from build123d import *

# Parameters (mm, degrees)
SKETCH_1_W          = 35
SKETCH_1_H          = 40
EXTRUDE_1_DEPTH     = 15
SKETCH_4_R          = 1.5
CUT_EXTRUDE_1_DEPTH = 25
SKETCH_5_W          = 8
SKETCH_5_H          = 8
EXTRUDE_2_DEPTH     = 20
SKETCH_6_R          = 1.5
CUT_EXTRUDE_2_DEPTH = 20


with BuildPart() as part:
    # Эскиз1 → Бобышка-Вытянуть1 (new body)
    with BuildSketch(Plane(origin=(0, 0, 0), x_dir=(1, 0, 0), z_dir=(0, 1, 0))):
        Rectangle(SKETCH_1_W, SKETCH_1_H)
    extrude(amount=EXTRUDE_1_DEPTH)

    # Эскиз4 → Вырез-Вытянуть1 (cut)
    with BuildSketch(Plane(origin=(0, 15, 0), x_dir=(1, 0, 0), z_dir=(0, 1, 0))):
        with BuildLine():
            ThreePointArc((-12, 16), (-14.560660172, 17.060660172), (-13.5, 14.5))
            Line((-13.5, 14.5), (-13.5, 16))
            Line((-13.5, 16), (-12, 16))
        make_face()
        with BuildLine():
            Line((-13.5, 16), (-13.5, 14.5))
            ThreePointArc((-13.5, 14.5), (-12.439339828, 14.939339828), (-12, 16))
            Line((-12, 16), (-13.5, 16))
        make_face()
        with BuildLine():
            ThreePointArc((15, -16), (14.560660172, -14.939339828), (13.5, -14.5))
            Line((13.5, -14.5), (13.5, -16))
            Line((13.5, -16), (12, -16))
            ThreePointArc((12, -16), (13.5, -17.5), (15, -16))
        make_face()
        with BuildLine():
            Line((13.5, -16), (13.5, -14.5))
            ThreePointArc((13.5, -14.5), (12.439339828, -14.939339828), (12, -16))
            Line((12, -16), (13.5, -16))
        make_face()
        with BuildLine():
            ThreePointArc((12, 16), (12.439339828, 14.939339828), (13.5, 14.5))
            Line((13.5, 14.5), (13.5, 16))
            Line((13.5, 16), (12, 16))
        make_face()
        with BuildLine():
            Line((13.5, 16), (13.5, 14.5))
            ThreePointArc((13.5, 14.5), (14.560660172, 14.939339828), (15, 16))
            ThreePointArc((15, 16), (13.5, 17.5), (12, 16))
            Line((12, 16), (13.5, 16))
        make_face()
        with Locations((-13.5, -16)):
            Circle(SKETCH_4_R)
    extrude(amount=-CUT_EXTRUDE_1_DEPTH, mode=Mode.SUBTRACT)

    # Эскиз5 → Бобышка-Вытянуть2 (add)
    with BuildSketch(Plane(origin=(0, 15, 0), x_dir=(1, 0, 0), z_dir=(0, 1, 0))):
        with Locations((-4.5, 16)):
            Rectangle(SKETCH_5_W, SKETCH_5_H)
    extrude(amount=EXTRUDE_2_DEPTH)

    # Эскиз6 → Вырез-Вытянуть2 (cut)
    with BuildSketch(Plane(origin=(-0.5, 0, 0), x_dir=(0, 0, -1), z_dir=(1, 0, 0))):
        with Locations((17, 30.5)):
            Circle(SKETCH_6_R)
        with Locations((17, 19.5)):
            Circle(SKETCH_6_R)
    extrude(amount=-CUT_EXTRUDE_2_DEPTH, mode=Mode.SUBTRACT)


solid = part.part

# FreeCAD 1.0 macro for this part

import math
import FreeCAD as App
import Part
import Sketcher
from FreeCAD import Vector

doc = App.newDocument("Part")
body = doc.addObject("PartDesign::Body", "Body")

# Sketch on XZ plane
sketch1 = body.newObject("Sketcher::SketchObject", "Sketch")
sketch1.AttachmentSupport = (doc.getObject("XZ_Plane"), [""])
sketch1.MapMode = "FlatFace"
sketch1.addGeometry([
    Part.LineSegment(Vector(-18, -20, 0), Vector(-18, 20, 0)),
    Part.LineSegment(Vector(-18, 20, 0), Vector(18, 20, 0)),
    Part.LineSegment(Vector(18, 20, 0), Vector(18, -20, 0)),
    Part.LineSegment(Vector(18, -20, 0), Vector(-18, -20, 0)),
], False)
sketch1.addConstraint([
    Sketcher.Constraint("Coincident", 0, 2, 1, 1),
    Sketcher.Constraint("Coincident", 1, 2, 2, 1),
    Sketcher.Constraint("Coincident", 2, 2, 3, 1),
    Sketcher.Constraint("Coincident", 3, 2, 0, 1),
    Sketcher.Constraint("Vertical", 0),
    Sketcher.Constraint("Horizontal", 1),
    Sketcher.Constraint("Vertical", 2),
    Sketcher.Constraint("Horizontal", 3),
    Sketcher.Constraint("Symmetric", 0, 2, 2, 2, -1, 1),
    Sketcher.Constraint("DistanceX", 1, 1, 1, 2, 35.0),
    Sketcher.Constraint("DistanceY", 0, 1, 0, 2, 40.0),
])
pad1 = body.newObject("PartDesign::Pad", "Pad")
pad1.Profile = sketch1
pad1.Length = 15
pad1.Reversed = True

# Sketch on XZ plane
sketch2 = body.newObject("Sketcher::SketchObject", "Sketch001")
sketch2.AttachmentSupport = (doc.getObject("XZ_Plane"), [""])
sketch2.MapMode = "FlatFace"
sketch2.AttachmentOffset = App.Placement(Vector(0, 0, -15), App.Rotation())
sketch2.addGeometry([
    Part.ArcOfCircle(Part.Circle(Vector(-13.5, -16, 0), Vector(0, 0, 1), 1.5), math.radians(90), math.radians(360)),  # 0
    Part.ArcOfCircle(Part.Circle(Vector(-13.5, -16, 0), Vector(0, 0, 1), 1.5), math.radians(0), math.radians(90)),  # 1
    Part.ArcOfCircle(Part.Circle(Vector(13.5, 16, 0), Vector(0, 0, 1), 1.5), math.radians(-90), math.radians(0)),  # 2
    Part.ArcOfCircle(Part.Circle(Vector(13.5, 16, 0), Vector(0, 0, 1), 1.5), math.radians(180), math.radians(270)),  # 3
    Part.ArcOfCircle(Part.Circle(Vector(13.5, 16, 0), Vector(0, 0, 1), 1.5), math.radians(0), math.radians(180)),  # 4
    Part.ArcOfCircle(Part.Circle(Vector(13.5, -16, 0), Vector(0, 0, 1), 1.5), math.radians(90), math.radians(180)),  # 5
    Part.ArcOfCircle(Part.Circle(Vector(13.5, -16, 0), Vector(0, 0, 1), 1.5), math.radians(0), math.radians(90)),  # 6
    Part.ArcOfCircle(Part.Circle(Vector(13.5, -16, 0), Vector(0, 0, 1), 1.5), math.radians(180), math.radians(360)),  # 7
    Part.Circle(Vector(-13.5, 16, 0), Vector(0, 0, 1), 1.5),  # 8
], False)
sketch2.addConstraint([
    Sketcher.Constraint("Tangent", 0, 1, 1, 2),
    Sketcher.Constraint("Coincident", 1, 1, 0, 2),
    Sketcher.Constraint("Tangent", 2, 1, 3, 2),
    Sketcher.Constraint("Tangent", 3, 1, 4, 2),
    Sketcher.Constraint("Tangent", 4, 1, 2, 2),
    Sketcher.Constraint("Tangent", 5, 1, 6, 2),
    Sketcher.Constraint("Tangent", 6, 1, 7, 2),
    Sketcher.Constraint("Tangent", 7, 1, 5, 2),
    Sketcher.Constraint("Equal", 1, 2),
    Sketcher.Constraint("Equal", 4, 5),
    Sketcher.Constraint("Equal", 7, 8),
    Sketcher.Constraint("Symmetric", 0, 3, 2, 3, -1, 1),
    Sketcher.Constraint("Symmetric", 5, 3, 8, 3, -1, 1),
    Sketcher.Constraint("Symmetric", 0, 3, 5, 3, -2),
    Sketcher.Constraint("Horizontal", 7, 3, 1, 1),
    Sketcher.Constraint("Horizontal", 8, 3, 3, 1),
    Sketcher.Constraint("Horizontal", 3, 1, 4, 1),
    Sketcher.Constraint("Horizontal", 1, 1, 6, 1),
    Sketcher.Constraint("Horizontal", 6, 1, 7, 1),
    Sketcher.Constraint("Vertical", 8, 3, 0, 1),
    Sketcher.Constraint("Vertical", 7, 3, 2, 1),
    Sketcher.Constraint("Vertical", 2, 1, 5, 1),
    Sketcher.Constraint("Diameter", 8, 3.0),
    Sketcher.Constraint("DistanceY", 0, 3, -1, 1, 16.0),
    Sketcher.Constraint("DistanceX", 1, 1, -1, 1, 12.0),
])
pocket1 = body.newObject("PartDesign::Pocket", "Pocket")
pocket1.Profile = sketch2
pocket1.Length = 25
pocket1.Reversed = True

# Sketch on XZ plane
sketch3 = body.newObject("Sketcher::SketchObject", "Sketch002")
sketch3.AttachmentSupport = (doc.getObject("XZ_Plane"), [""])
sketch3.MapMode = "FlatFace"
sketch3.AttachmentOffset = App.Placement(Vector(0, 0, -15), App.Rotation())
sketch3.addGeometry([
    Part.LineSegment(Vector(-8, -20, 0), Vector(-8, -12, 0)),
    Part.LineSegment(Vector(-8, -12, 0), Vector(0, -12, 0)),
    Part.LineSegment(Vector(0, -12, 0), Vector(0, -20, 0)),
    Part.LineSegment(Vector(0, -20, 0), Vector(-8, -20, 0)),
], False)
sketch3.addConstraint([
    Sketcher.Constraint("Coincident", 0, 2, 1, 1),
    Sketcher.Constraint("Coincident", 1, 2, 2, 1),
    Sketcher.Constraint("Coincident", 2, 2, 3, 1),
    Sketcher.Constraint("Coincident", 3, 2, 0, 1),
    Sketcher.Constraint("Vertical", 0),
    Sketcher.Constraint("Horizontal", 1),
    Sketcher.Constraint("Vertical", 2),
    Sketcher.Constraint("Horizontal", 3),
    Sketcher.Constraint("Equal", 3, 0),
    Sketcher.Constraint("DistanceX", 1, 1, 1, 2, 8.0),
    Sketcher.Constraint("DistanceY", 0, 2, -1, 1, 12.0),
    Sketcher.Constraint("DistanceX", 0, 2, -1, 1, 8.5),
])
pad2 = body.newObject("PartDesign::Pad", "Pad001")
pad2.Profile = sketch3
pad2.Length = 20
pad2.Reversed = True

# Sketch on YZ plane
sketch4 = body.newObject("Sketcher::SketchObject", "Sketch003")
sketch4.AttachmentSupport = (doc.getObject("YZ_Plane"), [""])
sketch4.MapMode = "FlatFace"
sketch4.AttachmentOffset = App.Placement(Vector(0, 0, -0.5), App.Rotation())
sketch4.addGeometry([
    Part.Circle(Vector(30.5, -17, 0), Vector(0, 0, 1), 1.5),
    Part.Circle(Vector(19.5, -17, 0), Vector(0, 0, 1), 1.5),
], False)
sketch4.addConstraint([
    Sketcher.Constraint("Equal", 0, 1),
    Sketcher.Constraint("Horizontal", 0, 3, 1, 3),
    Sketcher.Constraint("Diameter", 0, 3.0),
    Sketcher.Constraint("DistanceY", 0, 3, -1, 1, 17.0),
    Sketcher.Constraint("DistanceX", 1, 3, 0, 3, 11.0),
    Sketcher.Constraint("DistanceX", -1, 1, 0, 3, 30.5),
])
pocket2 = body.newObject("PartDesign::Pocket", "Pocket001")
pocket2.Profile = sketch4
pocket2.Length = 20

doc.recompute()
